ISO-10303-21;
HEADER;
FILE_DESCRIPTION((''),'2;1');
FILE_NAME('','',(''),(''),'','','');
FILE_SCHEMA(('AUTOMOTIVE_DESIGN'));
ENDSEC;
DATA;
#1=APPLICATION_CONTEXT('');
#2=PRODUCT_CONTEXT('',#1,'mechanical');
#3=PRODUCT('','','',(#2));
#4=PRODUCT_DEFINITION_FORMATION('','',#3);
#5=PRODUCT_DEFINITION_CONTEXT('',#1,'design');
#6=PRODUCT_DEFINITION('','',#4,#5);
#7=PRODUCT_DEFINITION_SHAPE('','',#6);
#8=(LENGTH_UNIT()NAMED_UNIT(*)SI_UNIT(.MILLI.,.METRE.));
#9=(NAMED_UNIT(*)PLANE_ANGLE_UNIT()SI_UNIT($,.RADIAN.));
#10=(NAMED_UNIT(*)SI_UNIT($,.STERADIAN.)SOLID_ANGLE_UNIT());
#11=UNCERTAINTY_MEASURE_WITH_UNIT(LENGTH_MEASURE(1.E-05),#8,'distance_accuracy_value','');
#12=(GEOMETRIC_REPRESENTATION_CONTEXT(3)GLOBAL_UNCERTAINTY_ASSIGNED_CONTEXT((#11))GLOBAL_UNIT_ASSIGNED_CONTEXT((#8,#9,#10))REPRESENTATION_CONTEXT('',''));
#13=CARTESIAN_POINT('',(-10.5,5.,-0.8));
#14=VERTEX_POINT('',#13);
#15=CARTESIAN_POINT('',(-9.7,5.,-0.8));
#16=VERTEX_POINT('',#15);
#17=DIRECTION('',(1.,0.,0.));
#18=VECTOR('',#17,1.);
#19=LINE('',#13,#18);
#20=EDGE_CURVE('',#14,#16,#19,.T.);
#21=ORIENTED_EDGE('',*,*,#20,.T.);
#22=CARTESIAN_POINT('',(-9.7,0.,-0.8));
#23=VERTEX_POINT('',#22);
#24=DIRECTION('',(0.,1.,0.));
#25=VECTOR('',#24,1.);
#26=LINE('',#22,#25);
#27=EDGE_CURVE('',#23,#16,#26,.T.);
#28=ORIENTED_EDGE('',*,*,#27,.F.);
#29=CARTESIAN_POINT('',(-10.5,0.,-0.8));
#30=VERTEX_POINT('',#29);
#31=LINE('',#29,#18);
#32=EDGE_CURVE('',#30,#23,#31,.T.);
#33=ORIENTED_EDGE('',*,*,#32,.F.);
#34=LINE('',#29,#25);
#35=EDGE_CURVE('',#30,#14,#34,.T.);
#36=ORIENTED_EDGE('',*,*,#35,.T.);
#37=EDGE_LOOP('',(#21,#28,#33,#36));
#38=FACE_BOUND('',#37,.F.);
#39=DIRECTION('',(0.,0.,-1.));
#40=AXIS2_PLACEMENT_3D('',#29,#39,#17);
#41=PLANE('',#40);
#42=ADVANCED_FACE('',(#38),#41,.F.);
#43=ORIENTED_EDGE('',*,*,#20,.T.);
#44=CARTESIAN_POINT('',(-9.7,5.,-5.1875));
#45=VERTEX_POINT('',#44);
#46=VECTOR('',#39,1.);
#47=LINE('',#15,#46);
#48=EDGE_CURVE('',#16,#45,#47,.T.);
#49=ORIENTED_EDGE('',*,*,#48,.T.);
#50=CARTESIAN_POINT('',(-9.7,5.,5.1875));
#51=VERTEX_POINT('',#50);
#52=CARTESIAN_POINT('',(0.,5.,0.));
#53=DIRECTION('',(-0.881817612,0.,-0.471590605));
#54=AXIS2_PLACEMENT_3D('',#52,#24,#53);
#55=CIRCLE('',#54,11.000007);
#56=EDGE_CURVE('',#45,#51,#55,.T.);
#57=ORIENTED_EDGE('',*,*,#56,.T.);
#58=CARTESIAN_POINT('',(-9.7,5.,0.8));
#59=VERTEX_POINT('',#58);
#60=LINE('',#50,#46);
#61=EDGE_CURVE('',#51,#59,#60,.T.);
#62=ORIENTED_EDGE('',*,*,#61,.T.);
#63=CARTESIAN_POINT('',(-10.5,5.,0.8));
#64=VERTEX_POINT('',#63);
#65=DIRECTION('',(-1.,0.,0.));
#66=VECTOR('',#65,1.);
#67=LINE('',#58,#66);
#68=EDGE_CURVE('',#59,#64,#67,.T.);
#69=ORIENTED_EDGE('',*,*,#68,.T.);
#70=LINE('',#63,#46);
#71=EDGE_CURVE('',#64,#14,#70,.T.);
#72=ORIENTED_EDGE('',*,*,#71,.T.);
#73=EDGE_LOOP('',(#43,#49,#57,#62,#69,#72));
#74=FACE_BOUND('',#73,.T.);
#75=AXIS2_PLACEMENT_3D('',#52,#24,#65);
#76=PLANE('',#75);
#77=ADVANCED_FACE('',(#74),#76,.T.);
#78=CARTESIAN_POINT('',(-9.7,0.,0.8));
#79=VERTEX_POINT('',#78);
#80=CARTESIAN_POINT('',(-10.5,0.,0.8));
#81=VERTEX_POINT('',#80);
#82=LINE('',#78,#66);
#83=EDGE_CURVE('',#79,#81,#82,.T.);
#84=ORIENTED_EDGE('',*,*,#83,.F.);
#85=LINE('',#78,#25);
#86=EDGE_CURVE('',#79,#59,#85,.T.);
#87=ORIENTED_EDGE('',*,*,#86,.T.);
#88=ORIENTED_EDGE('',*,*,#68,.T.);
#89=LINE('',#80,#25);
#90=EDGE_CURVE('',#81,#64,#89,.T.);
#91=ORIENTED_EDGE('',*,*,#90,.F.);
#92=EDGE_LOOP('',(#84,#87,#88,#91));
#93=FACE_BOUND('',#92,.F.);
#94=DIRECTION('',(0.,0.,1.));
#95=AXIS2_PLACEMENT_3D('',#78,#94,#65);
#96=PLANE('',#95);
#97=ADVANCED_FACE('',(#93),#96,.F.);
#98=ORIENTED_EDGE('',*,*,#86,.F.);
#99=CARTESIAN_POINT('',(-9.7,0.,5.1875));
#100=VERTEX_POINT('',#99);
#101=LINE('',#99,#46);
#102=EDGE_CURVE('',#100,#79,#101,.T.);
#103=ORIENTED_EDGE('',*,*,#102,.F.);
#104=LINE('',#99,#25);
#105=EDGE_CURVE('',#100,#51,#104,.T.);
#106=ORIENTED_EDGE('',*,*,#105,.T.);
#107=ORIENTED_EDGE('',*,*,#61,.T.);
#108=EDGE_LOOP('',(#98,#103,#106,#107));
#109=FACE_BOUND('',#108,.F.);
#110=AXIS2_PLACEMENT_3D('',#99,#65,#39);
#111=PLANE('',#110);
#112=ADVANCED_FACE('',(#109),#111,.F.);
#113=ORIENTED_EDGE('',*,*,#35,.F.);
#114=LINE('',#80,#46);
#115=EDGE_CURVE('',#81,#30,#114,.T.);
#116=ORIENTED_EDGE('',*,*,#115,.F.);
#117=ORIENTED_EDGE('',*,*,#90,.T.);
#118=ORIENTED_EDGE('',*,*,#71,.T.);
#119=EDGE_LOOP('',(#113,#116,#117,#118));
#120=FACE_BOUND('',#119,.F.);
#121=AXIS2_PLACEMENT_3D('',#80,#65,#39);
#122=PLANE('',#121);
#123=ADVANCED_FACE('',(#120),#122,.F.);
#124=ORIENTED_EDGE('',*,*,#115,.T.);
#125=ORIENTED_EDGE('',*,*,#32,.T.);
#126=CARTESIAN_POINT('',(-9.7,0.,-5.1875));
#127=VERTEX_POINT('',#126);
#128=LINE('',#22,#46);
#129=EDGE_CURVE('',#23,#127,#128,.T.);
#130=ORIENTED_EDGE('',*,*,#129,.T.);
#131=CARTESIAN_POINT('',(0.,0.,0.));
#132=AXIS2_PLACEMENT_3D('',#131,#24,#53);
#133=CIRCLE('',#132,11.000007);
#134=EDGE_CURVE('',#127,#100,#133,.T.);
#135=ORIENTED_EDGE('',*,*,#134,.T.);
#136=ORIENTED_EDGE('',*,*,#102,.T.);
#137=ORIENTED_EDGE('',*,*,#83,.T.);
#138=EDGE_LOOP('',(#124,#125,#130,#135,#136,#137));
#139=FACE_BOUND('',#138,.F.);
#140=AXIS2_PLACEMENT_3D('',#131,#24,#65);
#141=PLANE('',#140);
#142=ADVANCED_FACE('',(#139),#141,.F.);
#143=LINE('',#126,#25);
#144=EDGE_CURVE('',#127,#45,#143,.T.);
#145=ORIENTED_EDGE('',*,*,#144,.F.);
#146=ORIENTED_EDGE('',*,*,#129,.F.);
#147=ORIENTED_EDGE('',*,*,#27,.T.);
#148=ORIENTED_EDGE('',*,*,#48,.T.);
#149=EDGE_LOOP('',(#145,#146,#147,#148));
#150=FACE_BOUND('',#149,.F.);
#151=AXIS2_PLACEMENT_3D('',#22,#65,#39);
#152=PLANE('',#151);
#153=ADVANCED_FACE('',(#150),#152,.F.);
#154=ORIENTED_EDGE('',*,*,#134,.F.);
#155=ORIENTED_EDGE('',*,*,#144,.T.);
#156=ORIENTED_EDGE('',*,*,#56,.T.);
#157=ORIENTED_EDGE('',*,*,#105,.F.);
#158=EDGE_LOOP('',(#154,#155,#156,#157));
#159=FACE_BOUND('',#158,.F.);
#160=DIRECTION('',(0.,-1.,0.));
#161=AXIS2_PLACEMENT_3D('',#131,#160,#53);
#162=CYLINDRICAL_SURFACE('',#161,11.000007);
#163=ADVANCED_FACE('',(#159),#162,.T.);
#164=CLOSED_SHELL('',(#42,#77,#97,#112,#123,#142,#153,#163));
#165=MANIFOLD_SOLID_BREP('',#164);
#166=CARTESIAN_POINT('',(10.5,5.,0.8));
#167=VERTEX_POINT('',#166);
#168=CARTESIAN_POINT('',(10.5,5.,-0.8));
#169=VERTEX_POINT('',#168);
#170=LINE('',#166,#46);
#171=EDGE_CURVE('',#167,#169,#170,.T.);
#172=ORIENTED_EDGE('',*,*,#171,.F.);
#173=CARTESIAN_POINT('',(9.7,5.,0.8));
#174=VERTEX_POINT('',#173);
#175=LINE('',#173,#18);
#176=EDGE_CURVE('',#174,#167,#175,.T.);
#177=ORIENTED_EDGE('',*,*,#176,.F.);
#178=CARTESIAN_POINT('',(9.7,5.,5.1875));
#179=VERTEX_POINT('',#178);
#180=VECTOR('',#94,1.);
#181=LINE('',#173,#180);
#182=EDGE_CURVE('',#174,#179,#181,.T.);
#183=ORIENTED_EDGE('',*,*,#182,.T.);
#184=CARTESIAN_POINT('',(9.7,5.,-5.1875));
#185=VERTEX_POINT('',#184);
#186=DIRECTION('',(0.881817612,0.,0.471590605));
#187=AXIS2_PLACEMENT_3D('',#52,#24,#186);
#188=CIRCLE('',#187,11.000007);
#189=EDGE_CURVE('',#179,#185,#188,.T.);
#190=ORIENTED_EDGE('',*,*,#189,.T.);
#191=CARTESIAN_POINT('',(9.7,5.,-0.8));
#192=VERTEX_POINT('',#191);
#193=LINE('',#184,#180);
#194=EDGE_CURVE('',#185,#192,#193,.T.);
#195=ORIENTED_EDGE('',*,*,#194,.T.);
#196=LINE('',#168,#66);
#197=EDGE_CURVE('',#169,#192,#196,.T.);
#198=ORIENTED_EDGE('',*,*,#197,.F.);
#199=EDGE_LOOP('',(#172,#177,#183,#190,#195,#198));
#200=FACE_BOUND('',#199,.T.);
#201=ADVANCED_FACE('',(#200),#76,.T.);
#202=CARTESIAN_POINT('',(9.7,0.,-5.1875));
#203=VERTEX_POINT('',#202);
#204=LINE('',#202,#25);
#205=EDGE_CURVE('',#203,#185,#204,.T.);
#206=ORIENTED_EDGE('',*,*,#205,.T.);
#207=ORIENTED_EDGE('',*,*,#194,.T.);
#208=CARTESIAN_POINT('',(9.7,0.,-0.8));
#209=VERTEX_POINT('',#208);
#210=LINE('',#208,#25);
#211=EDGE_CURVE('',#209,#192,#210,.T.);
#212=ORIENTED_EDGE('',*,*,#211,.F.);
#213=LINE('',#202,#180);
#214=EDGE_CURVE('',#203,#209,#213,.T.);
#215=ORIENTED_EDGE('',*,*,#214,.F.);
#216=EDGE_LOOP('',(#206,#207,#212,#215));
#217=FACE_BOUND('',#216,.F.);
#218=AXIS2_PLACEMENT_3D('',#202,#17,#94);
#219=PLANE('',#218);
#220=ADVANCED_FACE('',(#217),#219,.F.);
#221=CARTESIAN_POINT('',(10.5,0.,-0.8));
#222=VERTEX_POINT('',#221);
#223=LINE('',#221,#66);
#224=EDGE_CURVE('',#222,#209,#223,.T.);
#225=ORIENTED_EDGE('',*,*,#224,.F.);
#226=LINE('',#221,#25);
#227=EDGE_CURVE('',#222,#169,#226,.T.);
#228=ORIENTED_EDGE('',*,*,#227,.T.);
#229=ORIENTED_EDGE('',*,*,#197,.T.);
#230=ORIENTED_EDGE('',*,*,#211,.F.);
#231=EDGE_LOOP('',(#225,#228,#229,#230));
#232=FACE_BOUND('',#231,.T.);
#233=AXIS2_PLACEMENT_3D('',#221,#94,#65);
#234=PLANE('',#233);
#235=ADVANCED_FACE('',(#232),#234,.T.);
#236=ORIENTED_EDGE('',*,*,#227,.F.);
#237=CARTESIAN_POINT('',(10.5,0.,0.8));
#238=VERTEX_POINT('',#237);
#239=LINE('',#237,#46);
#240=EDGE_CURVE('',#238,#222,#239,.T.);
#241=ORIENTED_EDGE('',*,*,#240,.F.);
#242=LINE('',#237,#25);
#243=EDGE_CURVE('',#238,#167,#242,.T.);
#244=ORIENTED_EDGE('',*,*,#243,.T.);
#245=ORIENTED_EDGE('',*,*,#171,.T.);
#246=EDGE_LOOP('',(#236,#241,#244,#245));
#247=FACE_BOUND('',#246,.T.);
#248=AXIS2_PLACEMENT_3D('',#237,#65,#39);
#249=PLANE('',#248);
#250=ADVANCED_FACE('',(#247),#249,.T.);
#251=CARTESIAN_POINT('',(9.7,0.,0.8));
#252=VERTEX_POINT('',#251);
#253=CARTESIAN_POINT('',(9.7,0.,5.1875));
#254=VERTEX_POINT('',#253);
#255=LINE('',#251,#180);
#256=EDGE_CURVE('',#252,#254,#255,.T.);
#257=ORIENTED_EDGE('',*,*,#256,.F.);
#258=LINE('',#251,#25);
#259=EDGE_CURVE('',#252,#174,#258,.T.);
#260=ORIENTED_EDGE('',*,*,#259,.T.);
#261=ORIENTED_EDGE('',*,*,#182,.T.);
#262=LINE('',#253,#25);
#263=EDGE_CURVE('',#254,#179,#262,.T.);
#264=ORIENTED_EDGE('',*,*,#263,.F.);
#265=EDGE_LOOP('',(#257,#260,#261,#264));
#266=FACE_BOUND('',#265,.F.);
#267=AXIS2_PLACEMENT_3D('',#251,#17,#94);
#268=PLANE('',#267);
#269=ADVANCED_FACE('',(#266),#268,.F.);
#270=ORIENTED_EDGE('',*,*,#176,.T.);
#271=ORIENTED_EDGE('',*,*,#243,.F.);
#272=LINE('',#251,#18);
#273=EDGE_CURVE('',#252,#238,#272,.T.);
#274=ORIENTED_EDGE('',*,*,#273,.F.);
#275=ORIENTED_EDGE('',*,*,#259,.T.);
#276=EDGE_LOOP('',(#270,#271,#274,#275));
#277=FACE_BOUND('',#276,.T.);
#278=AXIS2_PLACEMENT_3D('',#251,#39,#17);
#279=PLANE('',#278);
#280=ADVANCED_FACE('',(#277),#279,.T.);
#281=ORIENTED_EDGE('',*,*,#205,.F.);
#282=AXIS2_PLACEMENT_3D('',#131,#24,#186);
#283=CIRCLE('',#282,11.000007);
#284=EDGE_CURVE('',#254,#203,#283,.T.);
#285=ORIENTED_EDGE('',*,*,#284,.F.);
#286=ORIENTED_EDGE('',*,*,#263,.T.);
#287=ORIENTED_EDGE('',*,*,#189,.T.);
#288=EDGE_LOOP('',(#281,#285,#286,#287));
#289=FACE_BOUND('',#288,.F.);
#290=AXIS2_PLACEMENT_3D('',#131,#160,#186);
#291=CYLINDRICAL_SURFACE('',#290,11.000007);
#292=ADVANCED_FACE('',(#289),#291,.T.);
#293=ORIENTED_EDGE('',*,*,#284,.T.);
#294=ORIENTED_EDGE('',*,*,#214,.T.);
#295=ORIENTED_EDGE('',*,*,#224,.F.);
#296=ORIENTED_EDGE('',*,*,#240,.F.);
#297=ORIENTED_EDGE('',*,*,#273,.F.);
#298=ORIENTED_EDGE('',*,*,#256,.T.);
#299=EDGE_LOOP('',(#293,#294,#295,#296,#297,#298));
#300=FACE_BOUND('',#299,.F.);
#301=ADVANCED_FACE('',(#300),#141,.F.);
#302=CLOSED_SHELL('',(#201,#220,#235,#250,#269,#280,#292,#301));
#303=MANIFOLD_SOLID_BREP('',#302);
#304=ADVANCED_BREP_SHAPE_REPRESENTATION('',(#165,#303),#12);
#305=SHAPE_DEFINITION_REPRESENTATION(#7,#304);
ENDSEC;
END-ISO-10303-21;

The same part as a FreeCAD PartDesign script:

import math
import FreeCAD as App
import Part
import Sketcher

doc = App.newDocument("Part")
body = doc.addObject("PartDesign::Body", "Body")
body.AllowCompound = True

sketch1 = body.newObject("Sketcher::SketchObject", "Sketch")
sketch1.AttachmentSupport = (doc.getObject("XZ_Plane"), [""])
sketch1.MapMode = "FlatFace"
sketch1.addGeometry([
    Part.LineSegment(App.Vector(9.7, -0.8, 0), App.Vector(10.5, -0.8, 0)),
    Part.LineSegment(App.Vector(10.5, -0.8, 0), App.Vector(10.5, 0.8, 0)),
    Part.LineSegment(App.Vector(10.5, 0.8, 0), App.Vector(9.7, 0.8, 0)),
    Part.LineSegment(App.Vector(9.7, 0.8, 0), App.Vector(9.7, 5.2, 0)),
    Part.ArcOfCircle(Part.Circle(App.Vector(0, 0, 0), App.Vector(0, 0, 1), 11), math.radians(-28), math.radians(28)),
    Part.LineSegment(App.Vector(9.7, -5.2, 0), App.Vector(9.7, -0.8, 0)),
    Part.LineSegment(App.Vector(-9.7, 5.2, 0), App.Vector(-9.7, 0.8, 0)),
    Part.LineSegment(App.Vector(-9.7, 0.8, 0), App.Vector(-10.5, 0.8, 0)),
    Part.LineSegment(App.Vector(-10.5, 0.8, 0), App.Vector(-10.5, -0.8, 0)),
    Part.LineSegment(App.Vector(-10.5, -0.8, 0), App.Vector(-9.7, -0.8, 0)),
    Part.LineSegment(App.Vector(-9.7, -0.8, 0), App.Vector(-9.7, -5.2, 0)),
    Part.ArcOfCircle(Part.Circle(App.Vector(0, 0, 0), App.Vector(0, 0, 1), 11), math.radians(152), math.radians(208)),
], False)
sketch1.addConstraint([
    Sketcher.Constraint("Coincident", 0, 2, 1, 1),
    Sketcher.Constraint("Coincident", 1, 2, 2, 1),
    Sketcher.Constraint("Coincident", 2, 2, 3, 1),
    Sketcher.Constraint("Coincident", 3, 2, 4, 2),
    Sketcher.Constraint("Coincident", 4, 1, 5, 1),
    Sketcher.Constraint("Coincident", 5, 2, 0, 1),
    Sketcher.Constraint("Coincident", 6, 2, 7, 1),
    Sketcher.Constraint("Coincident", 7, 2, 8, 1),
    Sketcher.Constraint("Coincident", 8, 2, 9, 1),
    Sketcher.Constraint("Coincident", 9, 2, 10, 1),
    Sketcher.Constraint("Coincident", 10, 2, 11, 2),
    Sketcher.Constraint("Coincident", 11, 1, 6, 1),
    Sketcher.Constraint("Horizontal", 0),
    Sketcher.Constraint("Vertical", 1),
    Sketcher.Constraint("Horizontal", 2),
    Sketcher.Constraint("Vertical", 3),
    Sketcher.Constraint("Vertical", 5),
    Sketcher.Constraint("Vertical", 6),
    Sketcher.Constraint("Horizontal", 7),
    Sketcher.Constraint("Vertical", 8),
    Sketcher.Constraint("Horizontal", 9),
    Sketcher.Constraint("Vertical", 10),
    Sketcher.Constraint("Coincident", 4, 3, -1, 1),
    Sketcher.Constraint("Coincident", 11, 3, -1, 1),
    Sketcher.Constraint("Equal", 4, 11),
    Sketcher.Constraint("Symmetric", 5, 2, 6, 2, -1, 1),
    Sketcher.Constraint("Symmetric", 1, 2, 8, 2, -1, 1),
    Sketcher.Constraint("Symmetric", 2, 2, 6, 2, -2),
    Sketcher.Constraint("Horizontal", 4, 1, 10, 2),
    Sketcher.Constraint("Radius", 4, 11.0),
    Sketcher.Constraint("DistanceX", 0, 1, 0, 2, 0.8),
    Sketcher.Constraint("DistanceY", 1, 1, 1, 2, 1.6),
    Sketcher.Constraint("DistanceX", -1, 1, 0, 2, 10.5),
])
pad1 = body.newObject("PartDesign::Pad", "Pad")
pad1.Profile = sketch1
pad1.Length = 5
pad1.Reversed = True

doc.recompute()
